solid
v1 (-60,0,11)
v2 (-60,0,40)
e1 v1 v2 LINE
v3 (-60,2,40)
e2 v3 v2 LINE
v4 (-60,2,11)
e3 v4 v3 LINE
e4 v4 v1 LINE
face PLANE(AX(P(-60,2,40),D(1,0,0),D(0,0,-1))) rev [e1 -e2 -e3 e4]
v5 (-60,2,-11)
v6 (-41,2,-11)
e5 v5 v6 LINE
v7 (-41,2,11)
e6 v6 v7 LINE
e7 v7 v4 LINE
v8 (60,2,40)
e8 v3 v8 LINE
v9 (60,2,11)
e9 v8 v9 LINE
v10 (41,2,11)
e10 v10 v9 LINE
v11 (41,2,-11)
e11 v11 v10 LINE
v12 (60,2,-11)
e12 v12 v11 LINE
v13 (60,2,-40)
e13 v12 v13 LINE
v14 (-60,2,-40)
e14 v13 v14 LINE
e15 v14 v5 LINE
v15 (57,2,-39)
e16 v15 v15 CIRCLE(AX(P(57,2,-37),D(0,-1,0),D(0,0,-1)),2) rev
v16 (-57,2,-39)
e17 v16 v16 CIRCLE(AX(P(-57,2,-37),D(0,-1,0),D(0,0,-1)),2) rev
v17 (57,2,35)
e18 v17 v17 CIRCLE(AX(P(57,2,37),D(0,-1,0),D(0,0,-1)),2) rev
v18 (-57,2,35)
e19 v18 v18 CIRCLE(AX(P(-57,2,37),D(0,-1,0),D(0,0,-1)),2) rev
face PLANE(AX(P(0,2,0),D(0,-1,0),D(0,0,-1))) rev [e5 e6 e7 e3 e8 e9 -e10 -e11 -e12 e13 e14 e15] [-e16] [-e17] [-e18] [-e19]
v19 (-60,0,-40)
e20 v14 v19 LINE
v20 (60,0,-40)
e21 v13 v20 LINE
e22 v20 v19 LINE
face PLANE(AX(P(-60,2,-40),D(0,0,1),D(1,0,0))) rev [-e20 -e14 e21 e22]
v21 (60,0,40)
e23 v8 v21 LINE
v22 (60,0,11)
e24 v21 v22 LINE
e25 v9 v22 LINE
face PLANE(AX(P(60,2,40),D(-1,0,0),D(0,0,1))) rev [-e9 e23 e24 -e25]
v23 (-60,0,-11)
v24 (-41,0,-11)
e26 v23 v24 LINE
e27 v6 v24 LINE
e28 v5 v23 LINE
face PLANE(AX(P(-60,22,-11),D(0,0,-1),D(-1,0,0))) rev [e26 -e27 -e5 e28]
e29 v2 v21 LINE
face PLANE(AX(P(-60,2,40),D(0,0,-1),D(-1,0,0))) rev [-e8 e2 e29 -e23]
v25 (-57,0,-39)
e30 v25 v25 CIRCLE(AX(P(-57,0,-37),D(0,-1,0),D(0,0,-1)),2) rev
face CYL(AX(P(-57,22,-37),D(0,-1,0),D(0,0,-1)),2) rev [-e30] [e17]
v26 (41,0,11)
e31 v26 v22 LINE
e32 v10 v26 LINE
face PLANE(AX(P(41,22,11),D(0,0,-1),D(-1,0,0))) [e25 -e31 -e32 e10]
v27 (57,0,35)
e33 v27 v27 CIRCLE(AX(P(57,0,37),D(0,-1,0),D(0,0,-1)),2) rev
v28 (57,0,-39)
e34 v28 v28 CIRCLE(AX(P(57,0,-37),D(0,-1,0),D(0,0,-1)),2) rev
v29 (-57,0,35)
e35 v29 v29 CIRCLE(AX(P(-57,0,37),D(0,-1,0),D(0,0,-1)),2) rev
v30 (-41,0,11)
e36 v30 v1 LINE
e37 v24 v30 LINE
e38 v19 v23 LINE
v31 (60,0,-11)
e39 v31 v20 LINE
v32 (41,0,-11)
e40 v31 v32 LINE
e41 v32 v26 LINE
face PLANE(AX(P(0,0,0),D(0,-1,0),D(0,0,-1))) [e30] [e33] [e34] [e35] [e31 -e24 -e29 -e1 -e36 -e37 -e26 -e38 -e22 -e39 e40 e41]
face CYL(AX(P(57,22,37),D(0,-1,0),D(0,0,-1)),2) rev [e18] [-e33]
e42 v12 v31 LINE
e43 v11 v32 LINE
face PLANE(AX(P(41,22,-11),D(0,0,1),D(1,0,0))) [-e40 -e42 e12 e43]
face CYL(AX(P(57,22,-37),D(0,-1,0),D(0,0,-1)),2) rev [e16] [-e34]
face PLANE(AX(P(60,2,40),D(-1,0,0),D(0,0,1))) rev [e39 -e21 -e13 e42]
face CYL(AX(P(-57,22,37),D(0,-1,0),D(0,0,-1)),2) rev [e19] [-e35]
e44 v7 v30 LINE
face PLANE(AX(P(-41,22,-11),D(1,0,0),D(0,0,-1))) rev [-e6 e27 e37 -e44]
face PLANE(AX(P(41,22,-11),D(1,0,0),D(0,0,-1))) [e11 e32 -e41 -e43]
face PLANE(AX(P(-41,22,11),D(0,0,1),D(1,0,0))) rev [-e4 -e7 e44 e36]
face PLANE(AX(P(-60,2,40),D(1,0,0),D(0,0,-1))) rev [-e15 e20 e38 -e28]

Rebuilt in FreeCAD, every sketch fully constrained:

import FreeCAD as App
import Part
import Sketcher
from FreeCAD import Vector
Q = App.Units.Quantity

doc = App.newDocument("Part")
body = doc.addObject("PartDesign::Body", "Body")

sketch1 = doc.addObject("Sketcher::SketchObject", "Sketch")
body.addObject(sketch1)
sketch1.AttachmentSupport = (doc.XZ_Plane, [""])
sketch1.MapMode = "FlatFace"
sketch1.addGeometry(Part.LineSegment(Vector(-60, -40, 0), Vector(-60, 40, 0)), False)
sketch1.addGeometry(Part.LineSegment(Vector(-60, 40, 0), Vector(60, 40, 0)), False)
sketch1.addGeometry(Part.LineSegment(Vector(60, 40, 0), Vector(60, -40, 0)), False)
sketch1.addGeometry(Part.LineSegment(Vector(60, -40, 0), Vector(-60, -40, 0)), False)
sketch1.addConstraint(Sketcher.Constraint("Coincident", 0, 2, 1, 1))
sketch1.addConstraint(Sketcher.Constraint("Coincident", 1, 2, 2, 1))
sketch1.addConstraint(Sketcher.Constraint("Coincident", 2, 2, 3, 1))
sketch1.addConstraint(Sketcher.Constraint("Coincident", 3, 2, 0, 1))
sketch1.addConstraint(Sketcher.Constraint("Vertical", 0))
sketch1.addConstraint(Sketcher.Constraint("Horizontal", 1))
sketch1.addConstraint(Sketcher.Constraint("Vertical", 2))
sketch1.addConstraint(Sketcher.Constraint("Horizontal", 3))
sketch1.addConstraint(Sketcher.Constraint("Symmetric", 0, 2, 2, 2, -1, 1))
sketch1.addConstraint(Sketcher.Constraint("DistanceX", 1, 1, 1, 2, Q("120 mm")))
sketch1.addConstraint(Sketcher.Constraint("DistanceY", 0, 1, 0, 2, Q("80 mm")))
pad1 = doc.addObject("PartDesign::Pad", "Pad")
body.addObject(pad1)
pad1.Profile = sketch1
pad1.Length = 2
pad1.Reversed = True

sketch2 = doc.addObject("Sketcher::SketchObject", "Sketch001")
body.addObject(sketch2)
sketch2.AttachmentSupport = (doc.XZ_Plane, [""])
sketch2.MapMode = "FlatFace"
sketch2.AttachmentOffset = App.Placement(Vector(0, 0, -2), App.Rotation())
sketch2.addGeometry(Part.LineSegment(Vector(-60, -11, 0), Vector(-60, 11, 0)), False)
sketch2.addGeometry(Part.LineSegment(Vector(-60, 11, 0), Vector(-41, 11, 0)), False)
sketch2.addGeometry(Part.LineSegment(Vector(-41, 11, 0), Vector(-41, -11, 0)), False)
sketch2.addGeometry(Part.LineSegment(Vector(-41, -11, 0), Vector(-60, -11, 0)), False)
sketch2.addConstraint(Sketcher.Constraint("Coincident", 0, 2, 1, 1))
sketch2.addConstraint(Sketcher.Constraint("Coincident", 1, 2, 2, 1))
sketch2.addConstraint(Sketcher.Constraint("Coincident", 2, 2, 3, 1))
sketch2.addConstraint(Sketcher.Constraint("Coincident", 3, 2, 0, 1))
sketch2.addConstraint(Sketcher.Constraint("Vertical", 0))
sketch2.addConstraint(Sketcher.Constraint("Horizontal", 1))
sketch2.addConstraint(Sketcher.Constraint("Vertical", 2))
sketch2.addConstraint(Sketcher.Constraint("Horizontal", 3))
sketch2.addConstraint(Sketcher.Constraint("DistanceX", 1, 1, 1, 2, Q("19 mm")))
sketch2.addConstraint(Sketcher.Constraint("DistanceY", 0, 1, 0, 2, Q("22 mm")))
sketch2.addConstraint(Sketcher.Constraint("DistanceX", 0, 2, -1, 1, Q("60 mm")))
sketch2.addConstraint(Sketcher.Constraint("DistanceY", -1, 1, 0, 2, Q("11 mm")))
pocket1 = doc.addObject("PartDesign::Pocket", "Pocket")
body.addObject(pocket1)
pocket1.Profile = sketch2
pocket1.Type = "ThroughAll"
pocket1.Midplane = True

sketch3 = doc.addObject("Sketcher::SketchObject", "Sketch002")
body.addObject(sketch3)
sketch3.AttachmentSupport = (doc.XZ_Plane, [""])
sketch3.MapMode = "FlatFace"
sketch3.AttachmentOffset = App.Placement(Vector(0, 0, -2), App.Rotation())
sketch3.addGeometry(Part.LineSegment(Vector(41, -11, 0), Vector(41, 11, 0)), False)
sketch3.addGeometry(Part.LineSegment(Vector(41, 11, 0), Vector(60, 11, 0)), False)
sketch3.addGeometry(Part.LineSegment(Vector(60, 11, 0), Vector(60, -11, 0)), False)
sketch3.addGeometry(Part.LineSegment(Vector(60, -11, 0), Vector(41, -11, 0)), False)
sketch3.addConstraint(Sketcher.Constraint("Coincident", 0, 2, 1, 1))
sketch3.addConstraint(Sketcher.Constraint("Coincident", 1, 2, 2, 1))
sketch3.addConstraint(Sketcher.Constraint("Coincident", 2, 2, 3, 1))
sketch3.addConstraint(Sketcher.Constraint("Coincident", 3, 2, 0, 1))
sketch3.addConstraint(Sketcher.Constraint("Vertical", 0))
sketch3.addConstraint(Sketcher.Constraint("Horizontal", 1))
sketch3.addConstraint(Sketcher.Constraint("Vertical", 2))
sketch3.addConstraint(Sketcher.Constraint("Horizontal", 3))
sketch3.addConstraint(Sketcher.Constraint("DistanceX", 1, 1, 1, 2, Q("19 mm")))
sketch3.addConstraint(Sketcher.Constraint("DistanceY", 0, 1, 0, 2, Q("22 mm")))
sketch3.addConstraint(Sketcher.Constraint("DistanceX", -1, 1, 0, 2, Q("41 mm")))
sketch3.addConstraint(Sketcher.Constraint("DistanceY", -1, 1, 0, 2, Q("11 mm")))
pocket2 = doc.addObject("PartDesign::Pocket", "Pocket001")
body.addObject(pocket2)
pocket2.Profile = sketch3
pocket2.Type = "ThroughAll"
pocket2.Midplane = True

sketch4 = doc.addObject("Sketcher::SketchObject", "Sketch003")
body.addObject(sketch4)
sketch4.AttachmentSupport = (doc.XZ_Plane, [""])
sketch4.MapMode = "FlatFace"
sketch4.AttachmentOffset = App.Placement(Vector(0, 0, -2), App.Rotation())
sketch4.addGeometry(Part.Circle(Vector(-57, -37, 0), Vector(0, 0, 1), 2), False)
sketch4.addGeometry(Part.Circle(Vector(57, -37, 0), Vector(0, 0, 1), 2), False)
sketch4.addGeometry(Part.Circle(Vector(57, 37, 0), Vector(0, 0, 1), 2), False)
sketch4.addGeometry(Part.Circle(Vector(-57, 37, 0), Vector(0, 0, 1), 2), False)
sketch4.addConstraint(Sketcher.Constraint("Equal", 0, 1))
sketch4.addConstraint(Sketcher.Constraint("Equal", 1, 2))
sketch4.addConstraint(Sketcher.Constraint("Equal", 2, 3))
sketch4.addConstraint(Sketcher.Constraint("Symmetric", 0, 3, 2, 3, -1, 1))
sketch4.addConstraint(Sketcher.Constraint("Symmetric", 1, 3, 3, 3, -1, 1))
sketch4.addConstraint(Sketcher.Constraint("Symmetric", 0, 3, 1, 3, -2))
sketch4.addConstraint(Sketcher.Constraint("Diameter", 0, Q("4 mm")))
sketch4.addConstraint(Sketcher.Constraint("DistanceX", 0, 3, -1, 1, Q("57 mm")))
sketch4.addConstraint(Sketcher.Constraint("DistanceY", 0, 3, -1, 1, Q("37 mm")))
pocket3 = doc.addObject("PartDesign::Pocket", "Pocket002")
body.addObject(pocket3)
pocket3.Profile = sketch4
pocket3.Type = "ThroughAll"
pocket3.Midplane = True

doc.recompute()
